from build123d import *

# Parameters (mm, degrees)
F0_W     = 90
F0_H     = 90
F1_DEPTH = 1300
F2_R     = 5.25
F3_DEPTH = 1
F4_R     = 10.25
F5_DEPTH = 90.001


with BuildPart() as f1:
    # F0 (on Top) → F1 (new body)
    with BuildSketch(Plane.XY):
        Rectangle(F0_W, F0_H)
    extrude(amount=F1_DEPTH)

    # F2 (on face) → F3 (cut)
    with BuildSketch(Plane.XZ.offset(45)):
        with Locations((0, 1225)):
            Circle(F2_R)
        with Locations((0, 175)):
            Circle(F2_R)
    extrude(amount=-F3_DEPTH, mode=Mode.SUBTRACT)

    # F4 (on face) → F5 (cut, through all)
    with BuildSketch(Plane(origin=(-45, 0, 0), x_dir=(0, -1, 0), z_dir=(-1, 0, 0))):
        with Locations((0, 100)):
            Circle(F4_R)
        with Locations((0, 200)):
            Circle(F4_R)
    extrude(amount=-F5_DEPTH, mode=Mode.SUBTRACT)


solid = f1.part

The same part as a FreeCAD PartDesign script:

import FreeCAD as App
import Part
import Sketcher
from FreeCAD import Vector

doc = App.newDocument("Part")
body = doc.addObject("PartDesign::Body", "Body")

# Sketch on XY plane
sketch1 = doc.addObject("Sketcher::SketchObject", "Sketch")
body.addObject(sketch1)
sketch1.AttachmentSupport = (doc.XY_Plane, [""])
sketch1.MapMode = "FlatFace"
sketch1.addGeometry(Part.LineSegment(Vector(-45, 45, 0), Vector(-45, -45, 0)), False)
sketch1.addGeometry(Part.LineSegment(Vector(-45, -45, 0), Vector(45, -45, 0)), False)
sketch1.addGeometry(Part.LineSegment(Vector(45, -45, 0), Vector(45, 45, 0)), False)
sketch1.addGeometry(Part.LineSegment(Vector(45, 45, 0), Vector(-45, 45, 0)), False)
sketch1.addConstraint(Sketcher.Constraint("Coincident", 0, 2, 1, 1))
sketch1.addConstraint(Sketcher.Constraint("Coincident", 1, 2, 2, 1))
sketch1.addConstraint(Sketcher.Constraint("Coincident", 2, 2, 3, 1))
sketch1.addConstraint(Sketcher.Constraint("Coincident", 3, 2, 0, 1))
sketch1.addConstraint(Sketcher.Constraint("Vertical", 0))
sketch1.addConstraint(Sketcher.Constraint("Horizontal", 1))
sketch1.addConstraint(Sketcher.Constraint("Vertical", 2))
sketch1.addConstraint(Sketcher.Constraint("Horizontal", 3))
sketch1.addConstraint(Sketcher.Constraint("Symmetric", 0, 2, 2, 2, -1, 1))
sketch1.addConstraint(Sketcher.Constraint("Equal", 3, 0))
sketch1.addConstraint(Sketcher.Constraint("DistanceX", 1, 1, 1, 2, 90.0))
pad1 = doc.addObject("PartDesign::Pad", "Pad")
body.addObject(pad1)
pad1.Profile = sketch1
pad1.Length = 1300

# Sketch on XZ plane
sketch2 = doc.addObject("Sketcher::SketchObject", "Sketch001")
body.addObject(sketch2)
sketch2.AttachmentSupport = (doc.XZ_Plane, [""])
sketch2.MapMode = "FlatFace"
sketch2.AttachmentOffset = App.Placement(Vector(0, 0, 45), App.Rotation())
sketch2.addGeometry(Part.Circle(Vector(0, 1225, 0), Vector(0, 0, 1), 5), False)
sketch2.addGeometry(Part.Circle(Vector(0, 175, 0), Vector(0, 0, 1), 5), False)
sketch2.addConstraint(Sketcher.Constraint("Equal", 0, 1))
sketch2.addConstraint(Sketcher.Constraint("PointOnObject", 0, 3, -2))
sketch2.addConstraint(Sketcher.Constraint("PointOnObject", 1, 3, -2))
sketch2.addConstraint(Sketcher.Constraint("Diameter", 0, 10.5))
sketch2.addConstraint(Sketcher.Constraint("DistanceY", -1, 1, 0, 3, 1225.0))
sketch2.addConstraint(Sketcher.Constraint("DistanceY", -1, 1, 1, 3, 175.0))
pocket1 = doc.addObject("PartDesign::Pocket", "Pocket")
body.addObject(pocket1)
pocket1.Profile = sketch2
pocket1.Length = 1

# Sketch on YZ plane
sketch3 = doc.addObject("Sketcher::SketchObject", "Sketch002")
body.addObject(sketch3)
sketch3.AttachmentSupport = (doc.YZ_Plane, [""])
sketch3.MapMode = "FlatFace"
sketch3.AttachmentOffset = App.Placement(Vector(0, 0, -45), App.Rotation())
sketch3.addGeometry(Part.Circle(Vector(0, 100, 0), Vector(0, 0, 1), 10), False)
sketch3.addGeometry(Part.Circle(Vector(0, 200, 0), Vector(0, 0, 1), 10), False)
sketch3.addConstraint(Sketcher.Constraint("Equal", 0, 1))
sketch3.addConstraint(Sketcher.Constraint("PointOnObject", 0, 3, -2))
sketch3.addConstraint(Sketcher.Constraint("PointOnObject", 1, 3, -2))
sketch3.addConstraint(Sketcher.Constraint("Diameter", 0, 20.5))
sketch3.addConstraint(Sketcher.Constraint("DistanceY", -1, 1, 0, 3, 100.0))
sketch3.addConstraint(Sketcher.Constraint("DistanceY", -1, 1, 1, 3, 200.0))
pocket2 = doc.addObject("PartDesign::Pocket", "Pocket001")
body.addObject(pocket2)
pocket2.Profile = sketch3
pocket2.Type = "ThroughAll"
pocket2.Reversed = True

doc.recompute()
